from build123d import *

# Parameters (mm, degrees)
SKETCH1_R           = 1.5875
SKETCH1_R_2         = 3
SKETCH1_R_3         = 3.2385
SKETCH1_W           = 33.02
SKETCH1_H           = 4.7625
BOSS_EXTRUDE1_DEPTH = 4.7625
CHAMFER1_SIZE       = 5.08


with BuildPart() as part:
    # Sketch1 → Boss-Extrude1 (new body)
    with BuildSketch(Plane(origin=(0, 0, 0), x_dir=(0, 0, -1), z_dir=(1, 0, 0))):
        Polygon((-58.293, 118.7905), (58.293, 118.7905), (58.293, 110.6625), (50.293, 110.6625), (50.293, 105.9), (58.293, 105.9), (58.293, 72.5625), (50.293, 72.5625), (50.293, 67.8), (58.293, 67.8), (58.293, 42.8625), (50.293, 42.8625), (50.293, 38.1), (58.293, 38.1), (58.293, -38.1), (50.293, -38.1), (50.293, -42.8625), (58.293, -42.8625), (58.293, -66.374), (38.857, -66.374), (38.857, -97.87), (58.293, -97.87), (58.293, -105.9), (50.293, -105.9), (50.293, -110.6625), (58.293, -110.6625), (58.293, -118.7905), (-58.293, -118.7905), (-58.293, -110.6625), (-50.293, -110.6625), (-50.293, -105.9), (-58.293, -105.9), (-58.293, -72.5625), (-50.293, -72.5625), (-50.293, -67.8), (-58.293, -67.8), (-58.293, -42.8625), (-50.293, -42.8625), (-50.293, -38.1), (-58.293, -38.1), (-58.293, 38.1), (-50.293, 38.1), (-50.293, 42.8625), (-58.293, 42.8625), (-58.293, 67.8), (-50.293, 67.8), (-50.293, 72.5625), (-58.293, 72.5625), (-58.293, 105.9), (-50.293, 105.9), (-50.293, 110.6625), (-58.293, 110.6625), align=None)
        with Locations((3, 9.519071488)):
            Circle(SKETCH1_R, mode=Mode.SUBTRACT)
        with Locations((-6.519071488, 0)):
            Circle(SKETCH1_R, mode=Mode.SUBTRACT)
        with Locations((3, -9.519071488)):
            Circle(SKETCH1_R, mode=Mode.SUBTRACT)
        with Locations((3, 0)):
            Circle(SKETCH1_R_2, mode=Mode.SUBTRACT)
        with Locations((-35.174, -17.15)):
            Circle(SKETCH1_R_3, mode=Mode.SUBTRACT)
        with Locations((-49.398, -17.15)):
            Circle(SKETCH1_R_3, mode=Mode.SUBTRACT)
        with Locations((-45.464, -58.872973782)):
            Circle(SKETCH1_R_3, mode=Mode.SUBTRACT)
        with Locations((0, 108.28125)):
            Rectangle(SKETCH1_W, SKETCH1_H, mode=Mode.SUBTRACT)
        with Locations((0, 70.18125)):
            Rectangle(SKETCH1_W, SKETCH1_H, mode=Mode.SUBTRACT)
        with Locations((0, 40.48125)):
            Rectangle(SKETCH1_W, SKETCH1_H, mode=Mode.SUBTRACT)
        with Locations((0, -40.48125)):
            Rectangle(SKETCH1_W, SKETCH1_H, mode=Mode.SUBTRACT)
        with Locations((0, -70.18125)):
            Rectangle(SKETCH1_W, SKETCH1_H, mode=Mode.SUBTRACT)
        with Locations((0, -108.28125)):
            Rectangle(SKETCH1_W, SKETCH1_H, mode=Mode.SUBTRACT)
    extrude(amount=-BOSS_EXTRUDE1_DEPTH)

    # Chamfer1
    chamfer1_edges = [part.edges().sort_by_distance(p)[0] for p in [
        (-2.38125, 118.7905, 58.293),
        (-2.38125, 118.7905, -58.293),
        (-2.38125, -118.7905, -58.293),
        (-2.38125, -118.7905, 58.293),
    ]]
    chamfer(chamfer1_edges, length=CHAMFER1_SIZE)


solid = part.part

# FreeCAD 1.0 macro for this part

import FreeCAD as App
import Part
import Sketcher

V = App.Vector
Q = App.Units.Quantity


def edges_at(feature, points):
    """Names of the edges that pass closest to the given points."""
    edges = feature.Shape.Edges
    near = lambda p: min(range(len(edges)), key=lambda i: edges[i].distToShape(Part.Vertex(*p))[0])
    return sorted({f"Edge{near(p) + 1}" for p in points})


def add_polygon(sketch, points):
    """Adds a closed chain of lines whose ends are joined by coincident constraints."""
    first, n = sketch.GeometryCount, len(points)
    for a, b in zip(points, points[1:] + points[:1]):
        sketch.addGeometry(Part.LineSegment(App.Vector(*a, 0), App.Vector(*b, 0)), False)
    for i in range(n):
        sketch.addConstraint(Sketcher.Constraint("Coincident", first + i, 2, first + (i + 1) % n, 1))

doc = App.newDocument("Part")
params = doc.addObject("Spreadsheet::Sheet", "Params")
for row, (alias, value) in enumerate([
    ("sketch1_width", "3 in"),
    ("sketch1_diameter", "0.125 in"),
    ("sketch1_diameter2", "0.255 in"),
    ("sketch1_height", "1.3 in"),
    ("sketch1_width2", "0.32 in"),
    ("pad1_length", "0.1875 in"),
    ("chamfer_size", "0.2 in"),
], start=1):
    params.set(f"A{row}", alias)
    params.set(f"B{row}", "=" + value)
    params.setAlias(f"B{row}", alias)

body = doc.addObject("PartDesign::Body", "Body")

# Sketch on YZ plane
sketch1 = body.newObject("Sketcher::SketchObject", "Sketch")
sketch1.AttachmentSupport = (doc.getObject("YZ_Plane"), [""])
sketch1.MapMode = "FlatFace"
add_polygon(sketch1, [(118.8, -58.3), (118.8, 58.3), (110.7, 58.3), (110.7, 50.3), (105.9, 50.3), (105.9, 58.3), (72.6, 58.3), (72.6, 50.3), (67.8, 50.3), (67.8, 58.3), (42.9, 58.3), (42.9, 50.3), (38.1, 50.3), (38.1, 58.3), (-38.1, 58.3), (-38.1, 50.3), (-42.9, 50.3), (-42.9, 58.3), (-67.8, 58.3), (-67.8, 50.3), (-72.6, 50.3), (-72.6, 58.3), (-105.9, 58.3), (-105.9, 50.3), (-110.7, 50.3), (-110.7, 58.3), (-118.8, 58.3), (-118.8, -58.3), (-110.7, -58.3), (-110.7, -50.3), (-105.9, -50.3), (-105.9, -58.3), (-97.9, -58.3), (-97.9, -38.9), (-66.4, -38.9), (-66.4, -58.3), (-42.9, -58.3), (-42.9, -50.3), (-38.1, -50.3), (-38.1, -58.3), (38.1, -58.3), (38.1, -50.3), (42.9, -50.3), (42.9, -58.3), (67.8, -58.3), (67.8, -50.3), (72.6, -50.3), (72.6, -58.3), (105.9, -58.3), (105.9, -50.3), (110.7, -50.3), (110.7, -58.3)])  # lines 0-51
add_polygon(sketch1, [(-110.7, 16.5), (-105.9, 16.5), (-105.9, -16.5), (-110.7, -16.5)])  # lines 52-55
add_polygon(sketch1, [(-72.6, 16.5), (-67.8, 16.5), (-67.8, -16.5), (-72.6, -16.5)])  # lines 56-59
add_polygon(sketch1, [(-42.9, 16.5), (-38.1, 16.5), (-38.1, -16.5), (-42.9, -16.5)])  # lines 60-63
sketch1.addGeometry(Part.Circle(V(-9.5, -3, 0), V(0, 0, 1), 1.6), False)  # 64
sketch1.addGeometry(Part.Circle(V(-58.9, 45.5, 0), V(0, 0, 1), 3.2), False)  # 65
sketch1.addGeometry(Part.Circle(V(-17.1, 35.2, 0), V(0, 0, 1), 3.2), False)  # 66
sketch1.addGeometry(Part.Circle(V(-17.1, 49.4, 0), V(0, 0, 1), 3.2), False)  # 67
sketch1.addGeometry(Part.Circle(V(0, -3, 0), V(0, 0, 1), 3), False)  # 68
sketch1.addGeometry(Part.Circle(V(9.5, -3, 0), V(0, 0, 1), 1.6), False)  # 69
add_polygon(sketch1, [(38.1, 16.5), (42.9, 16.5), (42.9, -16.5), (38.1, -16.5)])  # lines 70-73
sketch1.addGeometry(Part.Circle(V(0, 6.5, 0), V(0, 0, 1), 1.6), False)  # 74
add_polygon(sketch1, [(67.8, 16.5), (72.6, 16.5), (72.6, -16.5), (67.8, -16.5)])  # lines 75-78
add_polygon(sketch1, [(105.9, 16.5), (110.7, 16.5), (110.7, -16.5), (105.9, -16.5)])  # lines 79-82
sketch1.addConstraint([
    Sketcher.Constraint("Vertical", 0),
    Sketcher.Constraint("Horizontal", 1),
    Sketcher.Constraint("Vertical", 2),
    Sketcher.Constraint("Horizontal", 3),
    Sketcher.Constraint("Vertical", 4),
    Sketcher.Constraint("Horizontal", 5),
    Sketcher.Constraint("Vertical", 6),
    Sketcher.Constraint("Horizontal", 7),
    Sketcher.Constraint("Vertical", 8),
    Sketcher.Constraint("Horizontal", 9),
    Sketcher.Constraint("Vertical", 10),
    Sketcher.Constraint("Horizontal", 11),
    Sketcher.Constraint("Vertical", 12),
    Sketcher.Constraint("Horizontal", 13),
    Sketcher.Constraint("Vertical", 14),
    Sketcher.Constraint("Horizontal", 15),
    Sketcher.Constraint("Vertical", 16),
    Sketcher.Constraint("Horizontal", 17),
    Sketcher.Constraint("Vertical", 18),
    Sketcher.Constraint("Horizontal", 19),
    Sketcher.Constraint("Vertical", 20),
    Sketcher.Constraint("Horizontal", 21),
    Sketcher.Constraint("Vertical", 22),
    Sketcher.Constraint("Horizontal", 23),
    Sketcher.Constraint("Vertical", 24),
    Sketcher.Constraint("Horizontal", 25),
    Sketcher.Constraint("Vertical", 26),
    Sketcher.Constraint("Horizontal", 27),
    Sketcher.Constraint("Vertical", 28),
    Sketcher.Constraint("Horizontal", 29),
    Sketcher.Constraint("Vertical", 30),
    Sketcher.Constraint("Horizontal", 31),
    Sketcher.Constraint("Vertical", 32),
    Sketcher.Constraint("Horizontal", 33),
    Sketcher.Constraint("Vertical", 34),
    Sketcher.Constraint("Horizontal", 35),
    Sketcher.Constraint("Vertical", 36),
    Sketcher.Constraint("Horizontal", 37),
    Sketcher.Constraint("Vertical", 38),
    Sketcher.Constraint("Horizontal", 39),
    Sketcher.Constraint("Vertical", 40),
    Sketcher.Constraint("Horizontal", 41),
    Sketcher.Constraint("Vertical", 42),
    Sketcher.Constraint("Horizontal", 43),
    Sketcher.Constraint("Vertical", 44),
    Sketcher.Constraint("Horizontal", 45),
    Sketcher.Constraint("Vertical", 46),
    Sketcher.Constraint("Horizontal", 47),
    Sketcher.Constraint("Vertical", 48),
    Sketcher.Constraint("Horizontal", 49),
    Sketcher.Constraint("Vertical", 50),
    Sketcher.Constraint("Horizontal", 51),
    Sketcher.Constraint("Horizontal", 52),
    Sketcher.Constraint("Vertical", 53),
    Sketcher.Constraint("Horizontal", 54),
    Sketcher.Constraint("Vertical", 55),
    Sketcher.Constraint("Horizontal", 56),
    Sketcher.Constraint("Vertical", 57),
    Sketcher.Constraint("Horizontal", 58),
    Sketcher.Constraint("Vertical", 59),
    Sketcher.Constraint("Horizontal", 60),
    Sketcher.Constraint("Vertical", 61),
    Sketcher.Constraint("Horizontal", 62),
    Sketcher.Constraint("Vertical", 63),
    Sketcher.Constraint("Horizontal", 70),
    Sketcher.Constraint("Vertical", 71),
    Sketcher.Constraint("Horizontal", 72),
    Sketcher.Constraint("Vertical", 73),
    Sketcher.Constraint("Horizontal", 75),
    Sketcher.Constraint("Vertical", 76),
    Sketcher.Constraint("Horizontal", 77),
    Sketcher.Constraint("Vertical", 78),
    Sketcher.Constraint("Horizontal", 79),
    Sketcher.Constraint("Vertical", 80),
    Sketcher.Constraint("Horizontal", 81),
    Sketcher.Constraint("Vertical", 82),
    Sketcher.Constraint("Equal", 65, 66),
    Sketcher.Constraint("Equal", 66, 67),
    Sketcher.Constraint("Equal", 64, 69),
    Sketcher.Constraint("Equal", 69, 74),
    Sketcher.Constraint("Symmetric", 0, 2, 26, 2, -1, 1),
    Sketcher.Constraint("Symmetric", 2, 2, 28, 2, -1, 1),
    Sketcher.Constraint("Symmetric", 4, 2, 30, 2, -1, 1),
    Sketcher.Constraint("Symmetric", 9, 2, 35, 2, -1, 1),
    Sketcher.Constraint("Symmetric", 11, 2, 37, 2, -1, 1),
    Sketcher.Constraint("Symmetric", 13, 2, 39, 2, -1, 1),
    Sketcher.Constraint("Symmetric", 15, 2, 41, 2, -1, 1),
    Sketcher.Constraint("Symmetric", 17, 2, 43, 2, -1, 1),
    Sketcher.Constraint("Symmetric", 19, 2, 45, 2, -1, 1),
    Sketcher.Constraint("Symmetric", 21, 2, 47, 2, -1, 1),
    Sketcher.Constraint("Symmetric", 23, 2, 49, 2, -1, 1),
    Sketcher.Constraint("Symmetric", 62, 2, 70, 2, -1, 1),
    Sketcher.Constraint("Symmetric", 60, 2, 72, 2, -1, 1),
    Sketcher.Constraint("Symmetric", 58, 2, 75, 2, -1, 1),
    Sketcher.Constraint("Symmetric", 56, 2, 77, 2, -1, 1),
    Sketcher.Constraint("Symmetric", 54, 2, 79, 2, -1, 1),
    Sketcher.Constraint("Symmetric", 52, 2, 81, 2, -1, 1),
    Sketcher.Constraint("Symmetric", 64, 3, 69, 3, -2),
    Sketcher.Constraint("Symmetric", 11, 2, 14, 2, -2),
    Sketcher.Constraint("Symmetric", 9, 2, 16, 2, -2),
    Sketcher.Constraint("Symmetric", 7, 2, 18, 2, -2),
    Sketcher.Constraint("Symmetric", 5, 2, 20, 2, -2),
    Sketcher.Constraint("Symmetric", 3, 2, 22, 2, -2),
    Sketcher.Constraint("Symmetric", 1, 2, 24, 2, -2),
    Sketcher.Constraint("PointOnObject", 68, 3, -2),
    Sketcher.Constraint("PointOnObject", 74, 3, -2),
    Sketcher.Constraint("Horizontal", 64, 3, 68, 3),
    Sketcher.Constraint("Horizontal", 1, 2, 4, 2),
    Sketcher.Constraint("Horizontal", 3, 2, 6, 2),
    Sketcher.Constraint("Horizontal", 5, 2, 8, 2),
    Sketcher.Constraint("Horizontal", 7, 2, 10, 2),
    Sketcher.Constraint("Horizontal", 9, 2, 12, 2),
    Sketcher.Constraint("Horizontal", 47, 2, 50, 2),
    Sketcher.Constraint("Horizontal", 55, 2, 56, 2),
    Sketcher.Constraint("Horizontal", 54, 2, 57, 2),
    Sketcher.Constraint("Horizontal", 59, 2, 60, 2),
    Sketcher.Constraint("Horizontal", 58, 2, 61, 2),
    Sketcher.Constraint("Horizontal", 63, 2, 70, 2),
    Sketcher.Constraint("Vertical", 66, 3, 67, 3),
    Sketcher.Constraint("Vertical", 30, 2, 52, 2),
    Sketcher.Constraint("Vertical", 28, 2, 54, 2),
    Sketcher.Constraint("Vertical", 18, 2, 56, 2),
    Sketcher.Constraint("Vertical", 20, 2, 58, 2),
    Sketcher.Constraint("Vertical", 38, 2, 60, 2),
    Sketcher.Constraint("Vertical", 36, 2, 62, 2),
    Sketcher.Constraint("Equal", 3, 7),
    Sketcher.Constraint("Equal", 7, 11),
    Sketcher.Constraint("DistanceX", 13, 2, 13, 1, Q("3 in")),
    Sketcher.Constraint("Diameter", 64, Q("0.125 in")),
    Sketcher.Constraint("Diameter", 65, Q("0.255 in")),
    Sketcher.Constraint("DistanceY", 53, 2, 53, 1, Q("1.3 in")),
    Sketcher.Constraint("DistanceX", 1, 2, 1, 1, Q("0.32 in")),
    Sketcher.Constraint("DistanceX", 33, 1, 33, 2, Q("1.24 in")),
    Sketcher.Constraint("DistanceY", 0, 1, 0, 2, Q("4.59 in")),
    Sketcher.Constraint("Diameter", 68, 6.0),
    Sketcher.Constraint("DistanceX", 3, 2, 3, 1, Q("0.1875 in")),
    Sketcher.Constraint("DistanceX", 5, 2, 5, 1, Q("1.3125 in")),
    Sketcher.Constraint("DistanceX", 9, 2, 9, 1, 24.9375),
    Sketcher.Constraint("DistanceX", 31, 1, 31, 2, 8.03),
    Sketcher.Constraint("DistanceY", 2, 2, 2, 1, 8.0),
    Sketcher.Constraint("DistanceY", 32, 1, 32, 2, 19.436),
    Sketcher.Constraint("DistanceY", 64, 3, -1, 1, 3.0),
    Sketcher.Constraint("DistanceY", -1, 1, 65, 3, 45.464),
    Sketcher.Constraint("DistanceX", 66, 3, -1, 1, 17.15),
    Sketcher.Constraint("DistanceY", -1, 1, 66, 3, 35.174),
    Sketcher.Constraint("DistanceY", -1, 1, 67, 3, 49.398),
    Sketcher.Constraint("DistanceX", 64, 3, -1, 1, 9.519071),
    Sketcher.Constraint("DistanceY", -1, 1, 74, 3, 6.519071),
    Sketcher.Constraint("DistanceX", 65, 3, -1, 1, 58.872974),
])
sketch1.setExpression("Constraints[203]", "Params.sketch1_width")
sketch1.setExpression("Constraints[204]", "Params.sketch1_diameter")
sketch1.setExpression("Constraints[205]", "Params.sketch1_diameter2")
sketch1.setExpression("Constraints[206]", "Params.sketch1_height")
sketch1.setExpression("Constraints[207]", "Params.sketch1_width2")
pad1 = body.newObject("PartDesign::Pad", "Pad")
pad1.Profile = sketch1
pad1.setExpression("Length", "Params.pad1_length")
pad1.Reversed = True
doc.recompute()

chamfer = body.newObject("PartDesign::Chamfer", "Chamfer")
chamfer.Base = (pad1, edges_at(pad1, [
    (-2.381, 118.79, 58.293),
    (-2.381, 118.79, -58.293),
    (-2.381, -118.79, -58.293),
    (-2.381, -118.79, 58.293),
]))
chamfer.setExpression("Size", "Params.chamfer_size")

doc.recompute()
